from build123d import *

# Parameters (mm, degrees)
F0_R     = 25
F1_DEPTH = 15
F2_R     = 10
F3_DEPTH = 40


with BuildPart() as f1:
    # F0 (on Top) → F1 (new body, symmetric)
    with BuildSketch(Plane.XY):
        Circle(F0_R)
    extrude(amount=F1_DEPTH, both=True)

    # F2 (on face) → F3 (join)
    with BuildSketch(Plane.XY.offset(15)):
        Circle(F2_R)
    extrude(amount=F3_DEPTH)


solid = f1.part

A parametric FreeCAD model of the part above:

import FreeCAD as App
import Part
import Sketcher
from FreeCAD import Vector

doc = App.newDocument("Part")
body = doc.addObject("PartDesign::Body", "Body")

sketch1 = body.newObject("Sketcher::SketchObject", "Sketch")
sketch1.AttachmentSupport = (doc.getObject("XY_Plane"), [""])
sketch1.MapMode = "FlatFace"
sketch1.addGeometry(Part.Circle(Vector(0, 0, 0), Vector(0, 0, 1), 25), False)
sketch1.addConstraint([
    Sketcher.Constraint("Coincident", 0, 3, -1, 1),
    Sketcher.Constraint("Diameter", 0, 50.0),
])
pad1 = body.newObject("PartDesign::Pad", "Pad")
pad1.Profile = sketch1
pad1.Length = 30
pad1.Midplane = True

sketch2 = body.newObject("Sketcher::SketchObject", "Sketch001")
sketch2.AttachmentSupport = (doc.getObject("XY_Plane"), [""])
sketch2.MapMode = "FlatFace"
sketch2.AttachmentOffset = App.Placement(Vector(0, 0, 15), App.Rotation())
sketch2.addGeometry(Part.Circle(Vector(0, 0, 0), Vector(0, 0, 1), 10), False)
sketch2.addConstraint([
    Sketcher.Constraint("Coincident", 0, 3, -1, 1),
    Sketcher.Constraint("Diameter", 0, 20.0),
])
pad2 = body.newObject("PartDesign::Pad", "Pad001")
pad2.Profile = sketch2
pad2.Length = 40

doc.recompute()
